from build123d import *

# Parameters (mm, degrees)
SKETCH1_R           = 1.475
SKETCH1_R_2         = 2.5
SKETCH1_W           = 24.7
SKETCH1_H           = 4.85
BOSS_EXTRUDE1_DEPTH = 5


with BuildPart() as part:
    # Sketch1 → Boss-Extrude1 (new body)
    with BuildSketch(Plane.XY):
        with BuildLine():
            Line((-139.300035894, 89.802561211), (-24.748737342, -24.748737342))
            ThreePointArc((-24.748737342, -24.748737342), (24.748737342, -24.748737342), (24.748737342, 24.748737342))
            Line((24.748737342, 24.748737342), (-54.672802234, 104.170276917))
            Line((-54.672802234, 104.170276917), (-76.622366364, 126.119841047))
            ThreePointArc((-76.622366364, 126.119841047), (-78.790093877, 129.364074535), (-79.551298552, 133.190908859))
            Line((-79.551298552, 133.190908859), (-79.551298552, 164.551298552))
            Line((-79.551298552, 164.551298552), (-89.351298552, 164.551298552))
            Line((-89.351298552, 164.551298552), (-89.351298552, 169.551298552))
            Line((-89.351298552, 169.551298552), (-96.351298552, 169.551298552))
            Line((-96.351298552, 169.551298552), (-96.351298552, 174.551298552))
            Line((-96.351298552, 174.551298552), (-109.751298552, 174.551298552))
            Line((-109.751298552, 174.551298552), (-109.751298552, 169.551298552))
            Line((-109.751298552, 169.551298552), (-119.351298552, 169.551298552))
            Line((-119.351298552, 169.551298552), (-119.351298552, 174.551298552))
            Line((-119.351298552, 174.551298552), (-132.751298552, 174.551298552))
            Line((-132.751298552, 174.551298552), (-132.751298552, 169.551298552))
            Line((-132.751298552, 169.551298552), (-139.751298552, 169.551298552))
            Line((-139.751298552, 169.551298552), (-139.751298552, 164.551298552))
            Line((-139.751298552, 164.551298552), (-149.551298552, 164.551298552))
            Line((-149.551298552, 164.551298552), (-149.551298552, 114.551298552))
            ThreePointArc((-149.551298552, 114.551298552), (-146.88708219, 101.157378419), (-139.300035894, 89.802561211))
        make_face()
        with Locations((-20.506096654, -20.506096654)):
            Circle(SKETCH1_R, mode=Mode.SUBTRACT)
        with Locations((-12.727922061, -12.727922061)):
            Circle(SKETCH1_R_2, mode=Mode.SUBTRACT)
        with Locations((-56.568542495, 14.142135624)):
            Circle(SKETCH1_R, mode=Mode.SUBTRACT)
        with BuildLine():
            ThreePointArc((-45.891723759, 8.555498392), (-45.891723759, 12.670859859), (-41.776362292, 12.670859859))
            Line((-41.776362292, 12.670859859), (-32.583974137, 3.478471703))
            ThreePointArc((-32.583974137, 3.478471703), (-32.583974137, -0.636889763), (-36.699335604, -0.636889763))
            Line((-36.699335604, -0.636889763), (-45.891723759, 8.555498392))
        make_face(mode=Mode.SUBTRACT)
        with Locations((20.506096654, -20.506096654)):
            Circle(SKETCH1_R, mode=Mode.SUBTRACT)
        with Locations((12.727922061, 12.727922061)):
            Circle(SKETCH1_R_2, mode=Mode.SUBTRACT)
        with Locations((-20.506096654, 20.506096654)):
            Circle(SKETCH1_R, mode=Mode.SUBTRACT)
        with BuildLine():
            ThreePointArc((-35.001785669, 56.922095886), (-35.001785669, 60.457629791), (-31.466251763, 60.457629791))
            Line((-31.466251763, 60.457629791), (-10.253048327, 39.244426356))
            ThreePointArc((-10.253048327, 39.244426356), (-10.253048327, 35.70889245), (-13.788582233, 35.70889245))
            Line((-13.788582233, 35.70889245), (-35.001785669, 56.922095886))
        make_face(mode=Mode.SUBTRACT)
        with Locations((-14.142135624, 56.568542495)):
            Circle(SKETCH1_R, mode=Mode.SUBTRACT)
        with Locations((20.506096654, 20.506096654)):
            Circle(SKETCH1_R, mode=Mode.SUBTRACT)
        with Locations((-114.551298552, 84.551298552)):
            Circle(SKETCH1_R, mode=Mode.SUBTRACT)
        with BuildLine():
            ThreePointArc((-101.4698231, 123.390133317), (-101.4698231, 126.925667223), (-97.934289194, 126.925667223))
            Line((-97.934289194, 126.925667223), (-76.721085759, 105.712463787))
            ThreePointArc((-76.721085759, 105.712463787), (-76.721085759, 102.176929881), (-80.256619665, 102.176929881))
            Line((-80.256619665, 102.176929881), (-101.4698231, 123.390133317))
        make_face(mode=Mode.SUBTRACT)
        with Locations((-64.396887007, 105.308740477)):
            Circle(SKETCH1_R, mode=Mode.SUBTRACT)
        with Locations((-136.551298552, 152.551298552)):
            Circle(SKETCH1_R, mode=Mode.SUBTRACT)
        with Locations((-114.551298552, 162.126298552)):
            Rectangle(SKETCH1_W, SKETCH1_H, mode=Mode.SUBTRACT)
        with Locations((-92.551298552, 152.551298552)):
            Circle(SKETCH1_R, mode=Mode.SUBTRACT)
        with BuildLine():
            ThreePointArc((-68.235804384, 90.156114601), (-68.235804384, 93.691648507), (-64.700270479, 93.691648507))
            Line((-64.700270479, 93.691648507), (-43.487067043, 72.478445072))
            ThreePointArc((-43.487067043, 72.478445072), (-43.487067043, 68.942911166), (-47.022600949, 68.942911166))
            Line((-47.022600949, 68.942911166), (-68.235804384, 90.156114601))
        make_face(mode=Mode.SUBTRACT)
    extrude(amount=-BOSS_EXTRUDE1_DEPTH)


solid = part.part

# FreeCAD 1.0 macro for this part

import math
import FreeCAD as App
import Part
import Sketcher
from FreeCAD import Vector
Q = App.Units.Quantity


def add_polygon(sketch, points):
    """Adds a closed chain of lines whose ends are joined by coincident constraints."""
    first, n = sketch.GeometryCount, len(points)
    for a, b in zip(points, points[1:] + points[:1]):
        sketch.addGeometry(Part.LineSegment(App.Vector(*a, 0), App.Vector(*b, 0)), False)
    for i in range(n):
        sketch.addConstraint(Sketcher.Constraint("Coincident", first + i, 2, first + (i + 1) % n, 1))

doc = App.newDocument("Part")
body = doc.addObject("PartDesign::Body", "Body")

# Sketch on XY plane
sketch1 = body.newObject("Sketcher::SketchObject", "Sketch")
sketch1.AttachmentSupport = (doc.getObject("XY_Plane"), [""])
sketch1.MapMode = "FlatFace"
sketch1.addGeometry(Part.LineSegment(Vector(-139.3, 89.8, 0), Vector(-24.7, -24.7, 0)), False)  # 0
sketch1.addGeometry(Part.ArcOfCircle(Part.Circle(Vector(0, 0, 0), Vector(0, 0, 1), 35), math.radians(-135), math.radians(45)), False)  # 1
sketch1.addGeometry(Part.LineSegment(Vector(24.7, 24.7, 0), Vector(-54.7, 104.2, 0)), False)  # 2
sketch1.addGeometry(Part.LineSegment(Vector(-54.7, 104.2, 0), Vector(-76.6, 126.1, 0)), False)  # 3
sketch1.addGeometry(Part.ArcOfCircle(Part.Circle(Vector(-69.6, 133.2, 0), Vector(0, 0, 1), 10), math.radians(180), math.radians(225)), False)  # 4
sketch1.addGeometry(Part.LineSegment(Vector(-79.6, 133.2, 0), Vector(-79.6, 164.6, 0)), False)  # 5
sketch1.addGeometry(Part.LineSegment(Vector(-79.6, 164.6, 0), Vector(-89.4, 164.6, 0)), False)  # 6
sketch1.addGeometry(Part.LineSegment(Vector(-89.4, 164.6, 0), Vector(-89.4, 169.6, 0)), False)  # 7
sketch1.addGeometry(Part.LineSegment(Vector(-89.4, 169.6, 0), Vector(-96.4, 169.6, 0)), False)  # 8
sketch1.addGeometry(Part.LineSegment(Vector(-96.4, 169.6, 0), Vector(-96.4, 174.6, 0)), False)  # 9
sketch1.addGeometry(Part.LineSegment(Vector(-96.4, 174.6, 0), Vector(-109.8, 174.6, 0)), False)  # 10
sketch1.addGeometry(Part.LineSegment(Vector(-109.8, 174.6, 0), Vector(-109.8, 169.6, 0)), False)  # 11
sketch1.addGeometry(Part.LineSegment(Vector(-109.8, 169.6, 0), Vector(-119.4, 169.6, 0)), False)  # 12
sketch1.addGeometry(Part.LineSegment(Vector(-119.4, 169.6, 0), Vector(-119.4, 174.6, 0)), False)  # 13
sketch1.addGeometry(Part.LineSegment(Vector(-119.4, 174.6, 0), Vector(-132.8, 174.6, 0)), False)  # 14
sketch1.addGeometry(Part.LineSegment(Vector(-132.8, 174.6, 0), Vector(-132.8, 169.6, 0)), False)  # 15
sketch1.addGeometry(Part.LineSegment(Vector(-132.8, 169.6, 0), Vector(-139.8, 169.6, 0)), False)  # 16
sketch1.addGeometry(Part.LineSegment(Vector(-139.8, 169.6, 0), Vector(-139.8, 164.6, 0)), False)  # 17
sketch1.addGeometry(Part.LineSegment(Vector(-139.8, 164.6, 0), Vector(-149.6, 164.6, 0)), False)  # 18
sketch1.addGeometry(Part.LineSegment(Vector(-149.6, 164.6, 0), Vector(-149.6, 114.6, 0)), False)  # 19
sketch1.addGeometry(Part.ArcOfCircle(Part.Circle(Vector(-114.6, 114.6, 0), Vector(0, 0, 1), 35), math.radians(180), math.radians(225)), False)  # 20
sketch1.addGeometry(Part.Circle(Vector(-20.5, -20.5, 0), Vector(0, 0, 1), 1.5), False)  # 21
sketch1.addGeometry(Part.LineSegment(Vector(-36.7, -0.6, 0), Vector(-45.9, 8.6, 0)), False)  # 22
sketch1.addGeometry(Part.ArcOfCircle(Part.Circle(Vector(-43.8, 10.6, 0), Vector(0, 0, 1), 2.9), math.radians(45), math.radians(225)), False)  # 23
sketch1.addGeometry(Part.LineSegment(Vector(-41.8, 12.7, 0), Vector(-32.6, 3.5, 0)), False)  # 24
sketch1.addGeometry(Part.ArcOfCircle(Part.Circle(Vector(-34.6, 1.4, 0), Vector(0, 0, 1), 2.9), math.radians(-135), math.radians(45)), False)  # 25
sketch1.addGeometry(Part.Circle(Vector(-56.6, 14.1, 0), Vector(0, 0, 1), 1.5), False)  # 26
sketch1.addGeometry(Part.Circle(Vector(-20.5, 20.5, 0), Vector(0, 0, 1), 1.5), False)  # 27
sketch1.addGeometry(Part.Circle(Vector(-12.7, -12.7, 0), Vector(0, 0, 1), 2.5), False)  # 28
sketch1.addGeometry(Part.Circle(Vector(20.5, -20.5, 0), Vector(0, 0, 1), 1.5), False)  # 29
sketch1.addGeometry(Part.Circle(Vector(12.7, 12.7, 0), Vector(0, 0, 1), 2.5), False)  # 30
sketch1.addGeometry(Part.Circle(Vector(20.5, 20.5, 0), Vector(0, 0, 1), 1.5), False)  # 31
sketch1.addGeometry(Part.LineSegment(Vector(-13.8, 35.7, 0), Vector(-35, 56.9, 0)), False)  # 32
sketch1.addGeometry(Part.ArcOfCircle(Part.Circle(Vector(-33.2, 58.7, 0), Vector(0, 0, 1), 2.5), math.radians(45), math.radians(225)), False)  # 33
sketch1.addGeometry(Part.LineSegment(Vector(-31.5, 60.5, 0), Vector(-10.3, 39.2, 0)), False)  # 34
sketch1.addGeometry(Part.ArcOfCircle(Part.Circle(Vector(-12, 37.5, 0), Vector(0, 0, 1), 2.5), math.radians(-135), math.radians(45)), False)  # 35
sketch1.addGeometry(Part.Circle(Vector(-14.1, 56.6, 0), Vector(0, 0, 1), 1.5), False)  # 36
sketch1.addGeometry(Part.Circle(Vector(-114.6, 84.6, 0), Vector(0, 0, 1), 1.5), False)  # 37
sketch1.addGeometry(Part.LineSegment(Vector(-80.3, 102.2, 0), Vector(-101.5, 123.4, 0)), False)  # 38
sketch1.addGeometry(Part.ArcOfCircle(Part.Circle(Vector(-99.7, 125.2, 0), Vector(0, 0, 1), 2.5), math.radians(45), math.radians(225)), False)  # 39
sketch1.addGeometry(Part.LineSegment(Vector(-97.9, 126.9, 0), Vector(-76.7, 105.7, 0)), False)  # 40
sketch1.addGeometry(Part.ArcOfCircle(Part.Circle(Vector(-78.5, 103.9, 0), Vector(0, 0, 1), 2.5), math.radians(-135), math.radians(45)), False)  # 41
sketch1.addGeometry(Part.Circle(Vector(-64.4, 105.3, 0), Vector(0, 0, 1), 1.5), False)  # 42
sketch1.addGeometry(Part.Circle(Vector(-136.6, 152.6, 0), Vector(0, 0, 1), 1.5), False)  # 43
add_polygon(sketch1, [(-102.2, 159.7), (-126.9, 159.7), (-126.9, 164.6), (-102.2, 164.6)])  # lines 44-47
sketch1.addGeometry(Part.Circle(Vector(-92.6, 152.6, 0), Vector(0, 0, 1), 1.5), False)  # 48
sketch1.addGeometry(Part.LineSegment(Vector(-47, 68.9, 0), Vector(-68.2, 90.2, 0)), False)  # 49
sketch1.addGeometry(Part.ArcOfCircle(Part.Circle(Vector(-66.5, 91.9, 0), Vector(0, 0, 1), 2.5), math.radians(45), math.radians(225)), False)  # 50
sketch1.addGeometry(Part.LineSegment(Vector(-64.7, 93.7, 0), Vector(-43.5, 72.5, 0)), False)  # 51
sketch1.addGeometry(Part.ArcOfCircle(Part.Circle(Vector(-45.3, 70.7, 0), Vector(0, 0, 1), 2.5), math.radians(-135), math.radians(45)), False)  # 52
sketch1.addConstraint([
    Sketcher.Constraint("Tangent", 0, 2, 1, 1),
    Sketcher.Constraint("Tangent", 1, 2, 2, 1),
    Sketcher.Constraint("Coincident", 2, 2, 3, 1),
    Sketcher.Constraint("Tangent", 3, 2, 4, 2),
    Sketcher.Constraint("Tangent", 4, 1, 5, 1),
    Sketcher.Constraint("Coincident", 5, 2, 6, 1),
    Sketcher.Constraint("Coincident", 6, 2, 7, 1),
    Sketcher.Constraint("Coincident", 7, 2, 8, 1),
    Sketcher.Constraint("Coincident", 8, 2, 9, 1),
    Sketcher.Constraint("Coincident", 9, 2, 10, 1),
    Sketcher.Constraint("Coincident", 10, 2, 11, 1),
    Sketcher.Constraint("Coincident", 11, 2, 12, 1),
    Sketcher.Constraint("Coincident", 12, 2, 13, 1),
    Sketcher.Constraint("Coincident", 13, 2, 14, 1),
    Sketcher.Constraint("Coincident", 14, 2, 15, 1),
    Sketcher.Constraint("Coincident", 15, 2, 16, 1),
    Sketcher.Constraint("Coincident", 16, 2, 17, 1),
    Sketcher.Constraint("Coincident", 17, 2, 18, 1),
    Sketcher.Constraint("Coincident", 18, 2, 19, 1),
    Sketcher.Constraint("Tangent", 19, 2, 20, 1),
    Sketcher.Constraint("Tangent", 20, 2, 0, 1),
    Sketcher.Constraint("Tangent", 22, 2, 23, 2),
    Sketcher.Constraint("Tangent", 23, 1, 24, 1),
    Sketcher.Constraint("Tangent", 24, 2, 25, 2),
    Sketcher.Constraint("Tangent", 25, 1, 22, 1),
    Sketcher.Constraint("Tangent", 32, 2, 33, 2),
    Sketcher.Constraint("Tangent", 33, 1, 34, 1),
    Sketcher.Constraint("Tangent", 34, 2, 35, 2),
    Sketcher.Constraint("Tangent", 35, 1, 32, 1),
    Sketcher.Constraint("Tangent", 38, 2, 39, 2),
    Sketcher.Constraint("Tangent", 39, 1, 40, 1),
    Sketcher.Constraint("Tangent", 40, 2, 41, 2),
    Sketcher.Constraint("Tangent", 41, 1, 38, 1),
    Sketcher.Constraint("Tangent", 49, 2, 50, 2),
    Sketcher.Constraint("Tangent", 50, 1, 51, 1),
    Sketcher.Constraint("Tangent", 51, 2, 52, 2),
    Sketcher.Constraint("Tangent", 52, 1, 49, 1),
    Sketcher.Constraint("Vertical", 5),
    Sketcher.Constraint("Horizontal", 6),
    Sketcher.Constraint("Vertical", 7),
    Sketcher.Constraint("Horizontal", 8),
    Sketcher.Constraint("Vertical", 9),
    Sketcher.Constraint("Horizontal", 10),
    Sketcher.Constraint("Vertical", 11),
    Sketcher.Constraint("Horizontal", 12),
    Sketcher.Constraint("Vertical", 13),
    Sketcher.Constraint("Horizontal", 14),
    Sketcher.Constraint("Vertical", 15),
    Sketcher.Constraint("Horizontal", 16),
    Sketcher.Constraint("Vertical", 17),
    Sketcher.Constraint("Horizontal", 18),
    Sketcher.Constraint("Vertical", 19),
    Sketcher.Constraint("Horizontal", 44),
    Sketcher.Constraint("Vertical", 45),
    Sketcher.Constraint("Horizontal", 46),
    Sketcher.Constraint("Vertical", 47),
    Sketcher.Constraint("Coincident", 1, 3, -1, 1),
    Sketcher.Constraint("Equal", 1, 20),
    Sketcher.Constraint("Equal", 23, 25),
    Sketcher.Constraint("Equal", 21, 26),
    Sketcher.Constraint("Equal", 26, 27),
    Sketcher.Constraint("Equal", 27, 29),
    Sketcher.Constraint("Equal", 28, 30),
    Sketcher.Constraint("Equal", 29, 31),
    Sketcher.Constraint("Equal", 30, 33),
    Sketcher.Constraint("Equal", 33, 35),
    Sketcher.Constraint("Equal", 31, 36),
    Sketcher.Constraint("Equal", 36, 37),
    Sketcher.Constraint("Equal", 35, 39),
    Sketcher.Constraint("Equal", 39, 41),
    Sketcher.Constraint("Equal", 37, 42),
    Sketcher.Constraint("Equal", 42, 43),
    Sketcher.Constraint("Equal", 43, 48),
    Sketcher.Constraint("Equal", 41, 50),
    Sketcher.Constraint("Equal", 50, 52),
    Sketcher.Constraint("Symmetric", 27, 3, 29, 3, -1, 1),
    Sketcher.Constraint("Symmetric", 28, 3, 30, 3, -1, 1),
    Sketcher.Constraint("Symmetric", 21, 3, 31, 3, -1, 1),
    Sketcher.Constraint("Symmetric", 21, 3, 29, 3, -2),
    Sketcher.Constraint("Parallel", 0, 2),
    Sketcher.Constraint("Parallel", 2, 3),
    Sketcher.Constraint("Parallel", 3, 22),
    Sketcher.Constraint("Parallel", 24, 32),
    Sketcher.Constraint("Parallel", 34, 38),
    Sketcher.Constraint("Parallel", 40, 49),
    Sketcher.Constraint("Horizontal", 43, 3, 48, 3),
    Sketcher.Constraint("Horizontal", 8, 2, 11, 2),
    Sketcher.Constraint("Horizontal", 10, 2, 13, 2),
    Sketcher.Constraint("Horizontal", 12, 2, 15, 2),
    Sketcher.Constraint("Horizontal", 6, 2, 17, 2),
    Sketcher.Constraint("Horizontal", 18, 2, 45, 2),
    Sketcher.Constraint("Vertical", 20, 3, 37, 3),
    Sketcher.Constraint("Equal", 10, 14),
    Sketcher.Constraint("Equal", 8, 16),
    Sketcher.Constraint("Equal", 6, 18),
    Sketcher.Constraint("Equal", 7, 9),
    Sketcher.Constraint("Equal", 34, 38),
    Sketcher.Constraint("Equal", 40, 49),
    Sketcher.Constraint("Diameter", 28, 5.0),
    Sketcher.Constraint("Radius", 1, 35.0),
    Sketcher.Constraint("Radius", 4, 10.0),
    Sketcher.Constraint("Diameter", 21, 2.95),
    Sketcher.Constraint("DistanceX", 8, 2, 8, 1, 7.0),
    Sketcher.Constraint("DistanceY", 7, 1, 7, 2, 5.0),
    Sketcher.Constraint("DistanceY", 19, 2, 19, 1, 50.0),
    Sketcher.Constraint("Angle", 0, Q("-45 deg")),
    Sketcher.Constraint("Radius", 23, 2.91),
    Sketcher.Constraint("Distance", 0, 162.0),
    Sketcher.Constraint("Distance", 22, 13.0),
    Sketcher.Constraint("Distance", 32, 30.0),
    Sketcher.Constraint("DistanceX", 6, 2, 6, 1, 9.8),
    Sketcher.Constraint("DistanceX", 10, 2, 10, 1, 13.4),
    Sketcher.Constraint("DistanceX", 12, 2, 12, 1, 9.6),
    Sketcher.Constraint("DistanceX", 44, 2, 44, 1, 24.7),
    Sketcher.Constraint("DistanceY", 45, 1, 45, 2, 4.85),
    Sketcher.Constraint("DistanceY", -1, 1, 37, 3, 84.551299),
    Sketcher.Constraint("DistanceY", -1, 1, 39, 3, 125.1579),
    Sketcher.Constraint("DistanceX", 43, 3, -1, 1, 136.551299),
    Sketcher.Constraint("DistanceY", -1, 1, 43, 3, 152.551299),
    Sketcher.Constraint("DistanceX", 48, 3, -1, 1, 92.551299),
    Sketcher.Constraint("DistanceY", -1, 1, 22, 2, 8.555498),
    Sketcher.Constraint("DistanceX", 44, 2, -1, 1, 126.901299),
    Sketcher.Constraint("DistanceX", 52, 1, -1, 1, 47.022601),
    Sketcher.Constraint("Distance", 2, 112.319018),
    Sketcher.Constraint("DistanceX", 33, 3, -1, 1, 33.234019),
    Sketcher.Constraint("DistanceY", -1, 1, 35, 3, 37.476659),
    Sketcher.Constraint("DistanceY", -1, 1, 42, 3, 105.30874),
    Sketcher.Constraint("DistanceY", -1, 1, 50, 3, 91.923882),
    Sketcher.Constraint("DistanceX", 39, 1, -1, 1, 97.934289),
    Sketcher.Constraint("DistanceX", 21, 3, -1, 1, 20.506097),
    Sketcher.Constraint("DistanceY", 21, 3, -1, 1, 20.506097),
    Sketcher.Constraint("DistanceX", 23, 3, -1, 1, 43.834043),
    Sketcher.Constraint("DistanceX", 26, 3, -1, 1, 56.568542),
    Sketcher.Constraint("DistanceY", -1, 1, 26, 3, 14.142136),
    Sketcher.Constraint("DistanceX", 28, 3, -1, 1, 12.727922),
    Sketcher.Constraint("DistanceY", 28, 3, -1, 1, 12.727922),
    Sketcher.Constraint("DistanceX", 36, 3, -1, 1, 14.142136),
    Sketcher.Constraint("DistanceY", -1, 1, 36, 3, 56.568542),
    Sketcher.Constraint("DistanceX", 42, 3, -1, 1, 64.396887),
])
pad1 = body.newObject("PartDesign::Pad", "Pad")
pad1.Profile = sketch1
pad1.Length = 5
pad1.Reversed = True

doc.recompute()
